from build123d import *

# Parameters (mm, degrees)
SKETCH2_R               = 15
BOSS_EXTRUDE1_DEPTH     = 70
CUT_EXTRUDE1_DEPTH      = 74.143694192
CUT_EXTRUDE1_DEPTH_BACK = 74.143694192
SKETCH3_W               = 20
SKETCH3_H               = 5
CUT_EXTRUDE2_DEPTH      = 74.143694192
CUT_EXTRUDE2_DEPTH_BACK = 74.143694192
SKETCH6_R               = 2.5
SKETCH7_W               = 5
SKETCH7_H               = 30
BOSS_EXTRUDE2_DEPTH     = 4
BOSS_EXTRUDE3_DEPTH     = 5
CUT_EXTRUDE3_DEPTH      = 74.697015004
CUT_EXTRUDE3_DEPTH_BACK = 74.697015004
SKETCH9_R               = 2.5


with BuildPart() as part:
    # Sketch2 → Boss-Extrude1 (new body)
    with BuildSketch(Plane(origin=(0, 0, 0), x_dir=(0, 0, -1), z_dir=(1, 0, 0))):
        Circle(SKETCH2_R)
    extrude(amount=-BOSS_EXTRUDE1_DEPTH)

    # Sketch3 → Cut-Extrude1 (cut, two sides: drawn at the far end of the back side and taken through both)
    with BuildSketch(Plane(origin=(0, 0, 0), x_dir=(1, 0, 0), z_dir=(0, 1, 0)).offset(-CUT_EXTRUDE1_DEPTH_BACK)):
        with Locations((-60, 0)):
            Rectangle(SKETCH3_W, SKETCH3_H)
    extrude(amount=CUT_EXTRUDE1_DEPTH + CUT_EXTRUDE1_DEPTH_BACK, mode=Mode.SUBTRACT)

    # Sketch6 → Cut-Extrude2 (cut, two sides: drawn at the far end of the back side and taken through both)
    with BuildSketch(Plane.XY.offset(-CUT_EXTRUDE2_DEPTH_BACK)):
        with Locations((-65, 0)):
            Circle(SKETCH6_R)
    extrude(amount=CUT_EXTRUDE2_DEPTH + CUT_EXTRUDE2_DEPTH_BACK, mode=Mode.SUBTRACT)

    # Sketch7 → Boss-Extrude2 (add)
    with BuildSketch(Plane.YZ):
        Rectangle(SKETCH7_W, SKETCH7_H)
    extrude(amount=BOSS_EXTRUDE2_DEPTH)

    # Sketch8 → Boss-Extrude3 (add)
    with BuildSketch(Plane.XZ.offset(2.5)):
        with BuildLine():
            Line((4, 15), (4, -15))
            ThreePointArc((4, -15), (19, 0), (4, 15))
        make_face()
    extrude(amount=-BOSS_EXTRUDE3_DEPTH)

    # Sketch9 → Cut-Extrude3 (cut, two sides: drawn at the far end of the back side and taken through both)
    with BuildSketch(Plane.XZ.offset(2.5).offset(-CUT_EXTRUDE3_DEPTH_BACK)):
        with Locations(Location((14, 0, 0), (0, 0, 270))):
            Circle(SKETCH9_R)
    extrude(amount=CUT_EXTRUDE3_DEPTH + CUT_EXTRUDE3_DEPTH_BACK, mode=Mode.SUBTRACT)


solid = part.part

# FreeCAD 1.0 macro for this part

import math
import FreeCAD as App
import Part
import Sketcher

doc = App.newDocument("Part")
params = doc.addObject("Spreadsheet::Sheet", "Params")
for row, (alias, value) in enumerate([
    ("sketch1_diameter", "30 mm"),
    ("pad1_length", "70 mm"),
    ("sketch2_width", "20 mm"),
    ("sketch2_height", "5 mm"),
    ("sketch3_diameter", "5 mm"),
    ("sketch4_width", "5 mm"),
    ("sketch4_height", "30 mm"),
    ("pad2_length", "4 mm"),
    ("sketch5_radius", "15 mm"),
    ("pad3_length", "5 mm"),
    ("sketch6_diameter", "5 mm"),
], start=1):
    params.set(f"A{row}", alias)
    params.set(f"B{row}", "=" + value)
    params.setAlias(f"B{row}", alias)

body = doc.addObject("PartDesign::Body", "Body")

sketch1 = body.newObject("Sketcher::SketchObject", "Sketch")
sketch1.AttachmentSupport = (doc.getObject("YZ_Plane"), [""])
sketch1.MapMode = "FlatFace"
sketch1.addGeometry(Part.Circle(App.Vector(0, 0, 0), App.Vector(0, 0, 1), 15), False)
sketch1.addConstraint([
    Sketcher.Constraint("Coincident", 0, 3, -1, 1),
    Sketcher.Constraint("Diameter", 0, 30.0),
])
sketch1.setExpression("Constraints[1]", "Params.sketch1_diameter")
pad1 = body.newObject("PartDesign::Pad", "Pad")
pad1.Profile = sketch1
pad1.setExpression("Length", "Params.pad1_length")
pad1.Reversed = True

sketch2 = body.newObject("Sketcher::SketchObject", "Sketch001")
sketch2.AttachmentSupport = (doc.getObject("XZ_Plane"), [""])
sketch2.MapMode = "FlatFace"
sketch2.addGeometry([
    Part.LineSegment(App.Vector(-70, -2.5, 0), App.Vector(-70, 2.5, 0)),
    Part.LineSegment(App.Vector(-70, 2.5, 0), App.Vector(-50, 2.5, 0)),
    Part.LineSegment(App.Vector(-50, 2.5, 0), App.Vector(-50, -2.5, 0)),
    Part.LineSegment(App.Vector(-50, -2.5, 0), App.Vector(-70, -2.5, 0)),
], False)
sketch2.addConstraint([
    Sketcher.Constraint("Coincident", 0, 2, 1, 1),
    Sketcher.Constraint("Coincident", 1, 2, 2, 1),
    Sketcher.Constraint("Coincident", 2, 2, 3, 1),
    Sketcher.Constraint("Coincident", 3, 2, 0, 1),
    Sketcher.Constraint("Vertical", 0),
    Sketcher.Constraint("Horizontal", 1),
    Sketcher.Constraint("Vertical", 2),
    Sketcher.Constraint("Horizontal", 3),
    Sketcher.Constraint("DistanceX", 1, 1, 1, 2, 20.0),
    Sketcher.Constraint("DistanceY", 0, 1, 0, 2, 5.0),
    Sketcher.Constraint("DistanceX", 0, 2, -1, 1, 70.0),
    Sketcher.Constraint("DistanceY", -1, 1, 0, 2, 2.5),
])
sketch2.setExpression("Constraints[8]", "Params.sketch2_width")
sketch2.setExpression("Constraints[9]", "Params.sketch2_height")
pocket1 = body.newObject("PartDesign::Pocket", "Pocket")
pocket1.Profile = sketch2
pocket1.Type = "ThroughAll"
pocket1.Midplane = True

sketch3 = body.newObject("Sketcher::SketchObject", "Sketch002")
sketch3.AttachmentSupport = (doc.getObject("XY_Plane"), [""])
sketch3.MapMode = "FlatFace"
sketch3.addGeometry(Part.Circle(App.Vector(-65, 0, 0), App.Vector(0, 0, 1), 2.5), False)
sketch3.addConstraint([
    Sketcher.Constraint("PointOnObject", 0, 3, -1),
    Sketcher.Constraint("Diameter", 0, 5.0),
    Sketcher.Constraint("DistanceX", 0, 3, -1, 1, 65.0),
])
sketch3.setExpression("Constraints[1]", "Params.sketch3_diameter")
pocket2 = body.newObject("PartDesign::Pocket", "Pocket001")
pocket2.Profile = sketch3
pocket2.Type = "ThroughAll"
pocket2.Midplane = True

sketch4 = body.newObject("Sketcher::SketchObject", "Sketch003")
sketch4.AttachmentSupport = (doc.getObject("YZ_Plane"), [""])
sketch4.MapMode = "FlatFace"
sketch4.addGeometry([
    Part.LineSegment(App.Vector(-2.5, 15, 0), App.Vector(-2.5, -15, 0)),
    Part.LineSegment(App.Vector(-2.5, -15, 0), App.Vector(2.5, -15, 0)),
    Part.LineSegment(App.Vector(2.5, -15, 0), App.Vector(2.5, 15, 0)),
    Part.LineSegment(App.Vector(2.5, 15, 0), App.Vector(-2.5, 15, 0)),
], False)
sketch4.addConstraint([
    Sketcher.Constraint("Coincident", 0, 2, 1, 1),
    Sketcher.Constraint("Coincident", 1, 2, 2, 1),
    Sketcher.Constraint("Coincident", 2, 2, 3, 1),
    Sketcher.Constraint("Coincident", 3, 2, 0, 1),
    Sketcher.Constraint("Vertical", 0),
    Sketcher.Constraint("Horizontal", 1),
    Sketcher.Constraint("Vertical", 2),
    Sketcher.Constraint("Horizontal", 3),
    Sketcher.Constraint("Symmetric", 0, 2, 2, 2, -1, 1),
    Sketcher.Constraint("DistanceX", 1, 1, 1, 2, 5.0),
    Sketcher.Constraint("DistanceY", 0, 2, 0, 1, 30.0),
])
sketch4.setExpression("Constraints[9]", "Params.sketch4_width")
sketch4.setExpression("Constraints[10]", "Params.sketch4_height")
pad2 = body.newObject("PartDesign::Pad", "Pad001")
pad2.Profile = sketch4
pad2.setExpression("Length", "Params.pad2_length")

sketch5 = body.newObject("Sketcher::SketchObject", "Sketch004")
sketch5.AttachmentSupport = (doc.getObject("XZ_Plane"), [""])
sketch5.MapMode = "FlatFace"
sketch5.AttachmentOffset = App.Placement(App.Vector(0, 0, 2.5), App.Rotation())
sketch5.addGeometry([
    Part.LineSegment(App.Vector(4, 15, 0), App.Vector(4, -15, 0)),
    Part.ArcOfCircle(Part.Circle(App.Vector(4, 0, 0), App.Vector(0, 0, 1), 15), math.radians(-90), math.radians(90)),
], False)
sketch5.addConstraint([
    Sketcher.Constraint("Coincident", 0, 1, 1, 2),
    Sketcher.Constraint("Coincident", 1, 1, 0, 2),
    Sketcher.Constraint("Vertical", 0),
    Sketcher.Constraint("PointOnObject", 1, 3, -1),
    Sketcher.Constraint("Vertical", 1, 3, 0, 1),
    Sketcher.Constraint("Radius", 1, 15.0),
    Sketcher.Constraint("DistanceX", -1, 1, 1, 3, 4.0),
])
sketch5.setExpression("Constraints[5]", "Params.sketch5_radius")
pad3 = body.newObject("PartDesign::Pad", "Pad002")
pad3.Profile = sketch5
pad3.setExpression("Length", "Params.pad3_length")
pad3.Reversed = True

sketch6 = body.newObject("Sketcher::SketchObject", "Sketch005")
sketch6.AttachmentSupport = (doc.getObject("XZ_Plane"), [""])
sketch6.MapMode = "FlatFace"
sketch6.AttachmentOffset = App.Placement(App.Vector(0, 0, 2.5), App.Rotation())
sketch6.addGeometry(Part.Circle(App.Vector(14, 0, 0), App.Vector(0, 0, 1), 2.5), False)
sketch6.addConstraint([
    Sketcher.Constraint("PointOnObject", 0, 3, -1),
    Sketcher.Constraint("Diameter", 0, 5.0),
    Sketcher.Constraint("DistanceX", -1, 1, 0, 3, 14.0),
])
sketch6.setExpression("Constraints[1]", "Params.sketch6_diameter")
pocket3 = body.newObject("PartDesign::Pocket", "Pocket002")
pocket3.Profile = sketch6
pocket3.Type = "ThroughAll"
pocket3.Midplane = True

doc.recompute()
